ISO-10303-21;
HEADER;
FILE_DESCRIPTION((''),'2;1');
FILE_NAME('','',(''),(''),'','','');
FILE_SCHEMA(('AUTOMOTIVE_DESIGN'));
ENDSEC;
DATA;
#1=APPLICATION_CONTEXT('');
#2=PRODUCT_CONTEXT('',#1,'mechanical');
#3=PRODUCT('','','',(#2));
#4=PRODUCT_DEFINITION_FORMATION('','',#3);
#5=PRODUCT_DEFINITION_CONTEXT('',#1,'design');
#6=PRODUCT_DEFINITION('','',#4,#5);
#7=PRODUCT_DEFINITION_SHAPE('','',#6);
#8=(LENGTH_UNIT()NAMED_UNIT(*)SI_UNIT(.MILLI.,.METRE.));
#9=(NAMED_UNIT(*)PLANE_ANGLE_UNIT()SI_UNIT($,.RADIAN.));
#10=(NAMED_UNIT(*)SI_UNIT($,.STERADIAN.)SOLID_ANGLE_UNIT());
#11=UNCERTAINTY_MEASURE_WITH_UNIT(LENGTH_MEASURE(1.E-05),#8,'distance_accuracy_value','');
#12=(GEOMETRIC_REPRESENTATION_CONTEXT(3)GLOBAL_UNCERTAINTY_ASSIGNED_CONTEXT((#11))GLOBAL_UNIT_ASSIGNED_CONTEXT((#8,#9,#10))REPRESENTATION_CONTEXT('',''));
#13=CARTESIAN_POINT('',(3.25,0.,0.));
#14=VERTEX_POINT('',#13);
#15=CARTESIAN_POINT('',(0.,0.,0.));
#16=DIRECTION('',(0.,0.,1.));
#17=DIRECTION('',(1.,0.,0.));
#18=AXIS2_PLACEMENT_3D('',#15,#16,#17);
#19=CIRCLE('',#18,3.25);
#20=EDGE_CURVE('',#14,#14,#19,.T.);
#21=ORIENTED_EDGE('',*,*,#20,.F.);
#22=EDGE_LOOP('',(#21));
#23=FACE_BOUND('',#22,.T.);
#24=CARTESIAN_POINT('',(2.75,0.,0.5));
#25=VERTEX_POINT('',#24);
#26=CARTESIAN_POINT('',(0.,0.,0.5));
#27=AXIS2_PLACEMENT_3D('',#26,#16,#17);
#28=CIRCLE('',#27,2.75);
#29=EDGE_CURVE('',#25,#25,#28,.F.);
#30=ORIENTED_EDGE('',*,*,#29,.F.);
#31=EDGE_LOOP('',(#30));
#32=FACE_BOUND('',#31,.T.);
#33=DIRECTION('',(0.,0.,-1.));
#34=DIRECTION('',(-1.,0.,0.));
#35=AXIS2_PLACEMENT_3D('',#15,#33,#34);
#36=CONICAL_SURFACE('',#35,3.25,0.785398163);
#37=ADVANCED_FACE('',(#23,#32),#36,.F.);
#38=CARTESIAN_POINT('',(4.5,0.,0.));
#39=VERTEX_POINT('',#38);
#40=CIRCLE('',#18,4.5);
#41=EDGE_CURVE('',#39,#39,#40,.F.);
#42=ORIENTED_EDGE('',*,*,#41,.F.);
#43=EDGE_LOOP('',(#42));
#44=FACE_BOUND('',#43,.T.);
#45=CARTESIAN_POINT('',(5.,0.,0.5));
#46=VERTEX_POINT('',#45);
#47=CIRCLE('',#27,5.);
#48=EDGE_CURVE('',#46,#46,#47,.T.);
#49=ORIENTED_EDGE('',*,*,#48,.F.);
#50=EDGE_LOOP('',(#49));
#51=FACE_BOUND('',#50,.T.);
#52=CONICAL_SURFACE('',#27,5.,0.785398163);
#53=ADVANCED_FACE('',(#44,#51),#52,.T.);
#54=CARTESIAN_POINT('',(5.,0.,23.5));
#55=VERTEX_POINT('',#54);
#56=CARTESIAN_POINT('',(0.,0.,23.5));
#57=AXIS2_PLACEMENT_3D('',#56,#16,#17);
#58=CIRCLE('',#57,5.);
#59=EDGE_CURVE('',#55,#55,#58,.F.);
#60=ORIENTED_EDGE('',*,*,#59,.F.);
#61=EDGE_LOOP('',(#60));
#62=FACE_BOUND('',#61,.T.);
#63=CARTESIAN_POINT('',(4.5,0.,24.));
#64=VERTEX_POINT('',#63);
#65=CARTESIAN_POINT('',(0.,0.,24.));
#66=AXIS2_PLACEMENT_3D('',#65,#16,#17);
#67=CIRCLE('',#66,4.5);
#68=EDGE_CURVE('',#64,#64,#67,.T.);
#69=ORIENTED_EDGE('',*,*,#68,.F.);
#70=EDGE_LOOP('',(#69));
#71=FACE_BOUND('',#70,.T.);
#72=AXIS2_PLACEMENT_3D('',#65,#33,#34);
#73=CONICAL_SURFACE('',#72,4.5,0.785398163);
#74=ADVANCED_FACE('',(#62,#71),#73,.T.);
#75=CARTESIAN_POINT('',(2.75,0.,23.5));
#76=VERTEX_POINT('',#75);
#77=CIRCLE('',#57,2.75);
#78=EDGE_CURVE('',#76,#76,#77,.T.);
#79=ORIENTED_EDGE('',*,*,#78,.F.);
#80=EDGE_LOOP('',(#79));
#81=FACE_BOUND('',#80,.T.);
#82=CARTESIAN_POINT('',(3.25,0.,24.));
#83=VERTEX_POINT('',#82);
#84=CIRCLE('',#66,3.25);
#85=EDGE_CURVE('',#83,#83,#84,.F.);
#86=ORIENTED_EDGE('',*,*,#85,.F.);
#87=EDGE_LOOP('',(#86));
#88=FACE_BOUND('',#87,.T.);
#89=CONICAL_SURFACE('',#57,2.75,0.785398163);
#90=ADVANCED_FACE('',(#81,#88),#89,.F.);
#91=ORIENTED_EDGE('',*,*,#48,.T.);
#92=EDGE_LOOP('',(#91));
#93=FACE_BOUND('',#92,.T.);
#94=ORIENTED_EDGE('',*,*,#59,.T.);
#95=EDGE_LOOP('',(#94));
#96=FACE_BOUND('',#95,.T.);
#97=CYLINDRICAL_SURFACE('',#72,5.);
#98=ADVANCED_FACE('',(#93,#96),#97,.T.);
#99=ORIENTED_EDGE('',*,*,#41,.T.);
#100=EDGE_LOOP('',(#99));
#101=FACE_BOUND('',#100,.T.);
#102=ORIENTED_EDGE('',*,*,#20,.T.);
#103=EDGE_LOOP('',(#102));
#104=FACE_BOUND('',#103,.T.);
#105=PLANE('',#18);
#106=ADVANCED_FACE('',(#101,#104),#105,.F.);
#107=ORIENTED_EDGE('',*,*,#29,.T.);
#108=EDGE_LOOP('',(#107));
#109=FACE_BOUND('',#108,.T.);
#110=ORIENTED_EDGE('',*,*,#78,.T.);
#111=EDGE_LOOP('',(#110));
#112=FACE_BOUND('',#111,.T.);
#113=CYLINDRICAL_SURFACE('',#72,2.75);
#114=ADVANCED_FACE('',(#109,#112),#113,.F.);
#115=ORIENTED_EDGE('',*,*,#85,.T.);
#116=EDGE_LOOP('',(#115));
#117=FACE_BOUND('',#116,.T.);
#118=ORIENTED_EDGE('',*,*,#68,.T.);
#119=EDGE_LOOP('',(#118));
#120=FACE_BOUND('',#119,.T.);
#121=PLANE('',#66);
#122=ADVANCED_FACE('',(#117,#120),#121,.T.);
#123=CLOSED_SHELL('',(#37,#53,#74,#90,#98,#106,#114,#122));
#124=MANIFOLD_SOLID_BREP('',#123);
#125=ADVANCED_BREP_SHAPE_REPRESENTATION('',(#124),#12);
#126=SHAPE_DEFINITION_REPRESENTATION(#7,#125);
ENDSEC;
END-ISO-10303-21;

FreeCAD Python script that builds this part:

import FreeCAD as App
import Part
import Sketcher

V = App.Vector
Q = App.Units.Quantity


def edges_at(feature, points):
    """Names of the edges that pass closest to the given points."""
    edges = feature.Shape.Edges
    near = lambda p: min(range(len(edges)), key=lambda i: edges[i].distToShape(Part.Vertex(*p))[0])
    return sorted({f"Edge{near(p) + 1}" for p in points})

doc = App.newDocument("Part")
body = doc.addObject("PartDesign::Body", "Body")

# Sketch on XY plane
sketch1 = doc.addObject("Sketcher::SketchObject", "Sketch")
body.addObject(sketch1)
sketch1.AttachmentSupport = (doc.XY_Plane, [""])
sketch1.MapMode = "FlatFace"
sketch1.addGeometry([
    Part.Circle(V(0, 0, 0), V(0, 0, 1), 5),
    Part.Circle(V(0, 0, 0), V(0, 0, 1), 2.8),
], False)
sketch1.addConstraint([
    Sketcher.Constraint("Coincident", 0, 3, -1, 1),
    Sketcher.Constraint("Coincident", 1, 3, -1, 1),
    Sketcher.Constraint("Diameter", 0, Q("10 mm")),
    Sketcher.Constraint("Diameter", 1, Q("5.5 mm")),
])
pad1 = doc.addObject("PartDesign::Pad", "Pad")
body.addObject(pad1)
pad1.Profile = sketch1
pad1.Length = 24
doc.recompute()

chamfer = doc.addObject("PartDesign::Chamfer", "Chamfer")
body.addObject(chamfer)
chamfer.Base = (pad1, edges_at(pad1, [
    (-5, 0, 0),
    (-5, 0, 24),
    (-2.75, 0, 0),
    (-2.75, 0, 24),
]))
chamfer.Size = 0.5

doc.recompute()
